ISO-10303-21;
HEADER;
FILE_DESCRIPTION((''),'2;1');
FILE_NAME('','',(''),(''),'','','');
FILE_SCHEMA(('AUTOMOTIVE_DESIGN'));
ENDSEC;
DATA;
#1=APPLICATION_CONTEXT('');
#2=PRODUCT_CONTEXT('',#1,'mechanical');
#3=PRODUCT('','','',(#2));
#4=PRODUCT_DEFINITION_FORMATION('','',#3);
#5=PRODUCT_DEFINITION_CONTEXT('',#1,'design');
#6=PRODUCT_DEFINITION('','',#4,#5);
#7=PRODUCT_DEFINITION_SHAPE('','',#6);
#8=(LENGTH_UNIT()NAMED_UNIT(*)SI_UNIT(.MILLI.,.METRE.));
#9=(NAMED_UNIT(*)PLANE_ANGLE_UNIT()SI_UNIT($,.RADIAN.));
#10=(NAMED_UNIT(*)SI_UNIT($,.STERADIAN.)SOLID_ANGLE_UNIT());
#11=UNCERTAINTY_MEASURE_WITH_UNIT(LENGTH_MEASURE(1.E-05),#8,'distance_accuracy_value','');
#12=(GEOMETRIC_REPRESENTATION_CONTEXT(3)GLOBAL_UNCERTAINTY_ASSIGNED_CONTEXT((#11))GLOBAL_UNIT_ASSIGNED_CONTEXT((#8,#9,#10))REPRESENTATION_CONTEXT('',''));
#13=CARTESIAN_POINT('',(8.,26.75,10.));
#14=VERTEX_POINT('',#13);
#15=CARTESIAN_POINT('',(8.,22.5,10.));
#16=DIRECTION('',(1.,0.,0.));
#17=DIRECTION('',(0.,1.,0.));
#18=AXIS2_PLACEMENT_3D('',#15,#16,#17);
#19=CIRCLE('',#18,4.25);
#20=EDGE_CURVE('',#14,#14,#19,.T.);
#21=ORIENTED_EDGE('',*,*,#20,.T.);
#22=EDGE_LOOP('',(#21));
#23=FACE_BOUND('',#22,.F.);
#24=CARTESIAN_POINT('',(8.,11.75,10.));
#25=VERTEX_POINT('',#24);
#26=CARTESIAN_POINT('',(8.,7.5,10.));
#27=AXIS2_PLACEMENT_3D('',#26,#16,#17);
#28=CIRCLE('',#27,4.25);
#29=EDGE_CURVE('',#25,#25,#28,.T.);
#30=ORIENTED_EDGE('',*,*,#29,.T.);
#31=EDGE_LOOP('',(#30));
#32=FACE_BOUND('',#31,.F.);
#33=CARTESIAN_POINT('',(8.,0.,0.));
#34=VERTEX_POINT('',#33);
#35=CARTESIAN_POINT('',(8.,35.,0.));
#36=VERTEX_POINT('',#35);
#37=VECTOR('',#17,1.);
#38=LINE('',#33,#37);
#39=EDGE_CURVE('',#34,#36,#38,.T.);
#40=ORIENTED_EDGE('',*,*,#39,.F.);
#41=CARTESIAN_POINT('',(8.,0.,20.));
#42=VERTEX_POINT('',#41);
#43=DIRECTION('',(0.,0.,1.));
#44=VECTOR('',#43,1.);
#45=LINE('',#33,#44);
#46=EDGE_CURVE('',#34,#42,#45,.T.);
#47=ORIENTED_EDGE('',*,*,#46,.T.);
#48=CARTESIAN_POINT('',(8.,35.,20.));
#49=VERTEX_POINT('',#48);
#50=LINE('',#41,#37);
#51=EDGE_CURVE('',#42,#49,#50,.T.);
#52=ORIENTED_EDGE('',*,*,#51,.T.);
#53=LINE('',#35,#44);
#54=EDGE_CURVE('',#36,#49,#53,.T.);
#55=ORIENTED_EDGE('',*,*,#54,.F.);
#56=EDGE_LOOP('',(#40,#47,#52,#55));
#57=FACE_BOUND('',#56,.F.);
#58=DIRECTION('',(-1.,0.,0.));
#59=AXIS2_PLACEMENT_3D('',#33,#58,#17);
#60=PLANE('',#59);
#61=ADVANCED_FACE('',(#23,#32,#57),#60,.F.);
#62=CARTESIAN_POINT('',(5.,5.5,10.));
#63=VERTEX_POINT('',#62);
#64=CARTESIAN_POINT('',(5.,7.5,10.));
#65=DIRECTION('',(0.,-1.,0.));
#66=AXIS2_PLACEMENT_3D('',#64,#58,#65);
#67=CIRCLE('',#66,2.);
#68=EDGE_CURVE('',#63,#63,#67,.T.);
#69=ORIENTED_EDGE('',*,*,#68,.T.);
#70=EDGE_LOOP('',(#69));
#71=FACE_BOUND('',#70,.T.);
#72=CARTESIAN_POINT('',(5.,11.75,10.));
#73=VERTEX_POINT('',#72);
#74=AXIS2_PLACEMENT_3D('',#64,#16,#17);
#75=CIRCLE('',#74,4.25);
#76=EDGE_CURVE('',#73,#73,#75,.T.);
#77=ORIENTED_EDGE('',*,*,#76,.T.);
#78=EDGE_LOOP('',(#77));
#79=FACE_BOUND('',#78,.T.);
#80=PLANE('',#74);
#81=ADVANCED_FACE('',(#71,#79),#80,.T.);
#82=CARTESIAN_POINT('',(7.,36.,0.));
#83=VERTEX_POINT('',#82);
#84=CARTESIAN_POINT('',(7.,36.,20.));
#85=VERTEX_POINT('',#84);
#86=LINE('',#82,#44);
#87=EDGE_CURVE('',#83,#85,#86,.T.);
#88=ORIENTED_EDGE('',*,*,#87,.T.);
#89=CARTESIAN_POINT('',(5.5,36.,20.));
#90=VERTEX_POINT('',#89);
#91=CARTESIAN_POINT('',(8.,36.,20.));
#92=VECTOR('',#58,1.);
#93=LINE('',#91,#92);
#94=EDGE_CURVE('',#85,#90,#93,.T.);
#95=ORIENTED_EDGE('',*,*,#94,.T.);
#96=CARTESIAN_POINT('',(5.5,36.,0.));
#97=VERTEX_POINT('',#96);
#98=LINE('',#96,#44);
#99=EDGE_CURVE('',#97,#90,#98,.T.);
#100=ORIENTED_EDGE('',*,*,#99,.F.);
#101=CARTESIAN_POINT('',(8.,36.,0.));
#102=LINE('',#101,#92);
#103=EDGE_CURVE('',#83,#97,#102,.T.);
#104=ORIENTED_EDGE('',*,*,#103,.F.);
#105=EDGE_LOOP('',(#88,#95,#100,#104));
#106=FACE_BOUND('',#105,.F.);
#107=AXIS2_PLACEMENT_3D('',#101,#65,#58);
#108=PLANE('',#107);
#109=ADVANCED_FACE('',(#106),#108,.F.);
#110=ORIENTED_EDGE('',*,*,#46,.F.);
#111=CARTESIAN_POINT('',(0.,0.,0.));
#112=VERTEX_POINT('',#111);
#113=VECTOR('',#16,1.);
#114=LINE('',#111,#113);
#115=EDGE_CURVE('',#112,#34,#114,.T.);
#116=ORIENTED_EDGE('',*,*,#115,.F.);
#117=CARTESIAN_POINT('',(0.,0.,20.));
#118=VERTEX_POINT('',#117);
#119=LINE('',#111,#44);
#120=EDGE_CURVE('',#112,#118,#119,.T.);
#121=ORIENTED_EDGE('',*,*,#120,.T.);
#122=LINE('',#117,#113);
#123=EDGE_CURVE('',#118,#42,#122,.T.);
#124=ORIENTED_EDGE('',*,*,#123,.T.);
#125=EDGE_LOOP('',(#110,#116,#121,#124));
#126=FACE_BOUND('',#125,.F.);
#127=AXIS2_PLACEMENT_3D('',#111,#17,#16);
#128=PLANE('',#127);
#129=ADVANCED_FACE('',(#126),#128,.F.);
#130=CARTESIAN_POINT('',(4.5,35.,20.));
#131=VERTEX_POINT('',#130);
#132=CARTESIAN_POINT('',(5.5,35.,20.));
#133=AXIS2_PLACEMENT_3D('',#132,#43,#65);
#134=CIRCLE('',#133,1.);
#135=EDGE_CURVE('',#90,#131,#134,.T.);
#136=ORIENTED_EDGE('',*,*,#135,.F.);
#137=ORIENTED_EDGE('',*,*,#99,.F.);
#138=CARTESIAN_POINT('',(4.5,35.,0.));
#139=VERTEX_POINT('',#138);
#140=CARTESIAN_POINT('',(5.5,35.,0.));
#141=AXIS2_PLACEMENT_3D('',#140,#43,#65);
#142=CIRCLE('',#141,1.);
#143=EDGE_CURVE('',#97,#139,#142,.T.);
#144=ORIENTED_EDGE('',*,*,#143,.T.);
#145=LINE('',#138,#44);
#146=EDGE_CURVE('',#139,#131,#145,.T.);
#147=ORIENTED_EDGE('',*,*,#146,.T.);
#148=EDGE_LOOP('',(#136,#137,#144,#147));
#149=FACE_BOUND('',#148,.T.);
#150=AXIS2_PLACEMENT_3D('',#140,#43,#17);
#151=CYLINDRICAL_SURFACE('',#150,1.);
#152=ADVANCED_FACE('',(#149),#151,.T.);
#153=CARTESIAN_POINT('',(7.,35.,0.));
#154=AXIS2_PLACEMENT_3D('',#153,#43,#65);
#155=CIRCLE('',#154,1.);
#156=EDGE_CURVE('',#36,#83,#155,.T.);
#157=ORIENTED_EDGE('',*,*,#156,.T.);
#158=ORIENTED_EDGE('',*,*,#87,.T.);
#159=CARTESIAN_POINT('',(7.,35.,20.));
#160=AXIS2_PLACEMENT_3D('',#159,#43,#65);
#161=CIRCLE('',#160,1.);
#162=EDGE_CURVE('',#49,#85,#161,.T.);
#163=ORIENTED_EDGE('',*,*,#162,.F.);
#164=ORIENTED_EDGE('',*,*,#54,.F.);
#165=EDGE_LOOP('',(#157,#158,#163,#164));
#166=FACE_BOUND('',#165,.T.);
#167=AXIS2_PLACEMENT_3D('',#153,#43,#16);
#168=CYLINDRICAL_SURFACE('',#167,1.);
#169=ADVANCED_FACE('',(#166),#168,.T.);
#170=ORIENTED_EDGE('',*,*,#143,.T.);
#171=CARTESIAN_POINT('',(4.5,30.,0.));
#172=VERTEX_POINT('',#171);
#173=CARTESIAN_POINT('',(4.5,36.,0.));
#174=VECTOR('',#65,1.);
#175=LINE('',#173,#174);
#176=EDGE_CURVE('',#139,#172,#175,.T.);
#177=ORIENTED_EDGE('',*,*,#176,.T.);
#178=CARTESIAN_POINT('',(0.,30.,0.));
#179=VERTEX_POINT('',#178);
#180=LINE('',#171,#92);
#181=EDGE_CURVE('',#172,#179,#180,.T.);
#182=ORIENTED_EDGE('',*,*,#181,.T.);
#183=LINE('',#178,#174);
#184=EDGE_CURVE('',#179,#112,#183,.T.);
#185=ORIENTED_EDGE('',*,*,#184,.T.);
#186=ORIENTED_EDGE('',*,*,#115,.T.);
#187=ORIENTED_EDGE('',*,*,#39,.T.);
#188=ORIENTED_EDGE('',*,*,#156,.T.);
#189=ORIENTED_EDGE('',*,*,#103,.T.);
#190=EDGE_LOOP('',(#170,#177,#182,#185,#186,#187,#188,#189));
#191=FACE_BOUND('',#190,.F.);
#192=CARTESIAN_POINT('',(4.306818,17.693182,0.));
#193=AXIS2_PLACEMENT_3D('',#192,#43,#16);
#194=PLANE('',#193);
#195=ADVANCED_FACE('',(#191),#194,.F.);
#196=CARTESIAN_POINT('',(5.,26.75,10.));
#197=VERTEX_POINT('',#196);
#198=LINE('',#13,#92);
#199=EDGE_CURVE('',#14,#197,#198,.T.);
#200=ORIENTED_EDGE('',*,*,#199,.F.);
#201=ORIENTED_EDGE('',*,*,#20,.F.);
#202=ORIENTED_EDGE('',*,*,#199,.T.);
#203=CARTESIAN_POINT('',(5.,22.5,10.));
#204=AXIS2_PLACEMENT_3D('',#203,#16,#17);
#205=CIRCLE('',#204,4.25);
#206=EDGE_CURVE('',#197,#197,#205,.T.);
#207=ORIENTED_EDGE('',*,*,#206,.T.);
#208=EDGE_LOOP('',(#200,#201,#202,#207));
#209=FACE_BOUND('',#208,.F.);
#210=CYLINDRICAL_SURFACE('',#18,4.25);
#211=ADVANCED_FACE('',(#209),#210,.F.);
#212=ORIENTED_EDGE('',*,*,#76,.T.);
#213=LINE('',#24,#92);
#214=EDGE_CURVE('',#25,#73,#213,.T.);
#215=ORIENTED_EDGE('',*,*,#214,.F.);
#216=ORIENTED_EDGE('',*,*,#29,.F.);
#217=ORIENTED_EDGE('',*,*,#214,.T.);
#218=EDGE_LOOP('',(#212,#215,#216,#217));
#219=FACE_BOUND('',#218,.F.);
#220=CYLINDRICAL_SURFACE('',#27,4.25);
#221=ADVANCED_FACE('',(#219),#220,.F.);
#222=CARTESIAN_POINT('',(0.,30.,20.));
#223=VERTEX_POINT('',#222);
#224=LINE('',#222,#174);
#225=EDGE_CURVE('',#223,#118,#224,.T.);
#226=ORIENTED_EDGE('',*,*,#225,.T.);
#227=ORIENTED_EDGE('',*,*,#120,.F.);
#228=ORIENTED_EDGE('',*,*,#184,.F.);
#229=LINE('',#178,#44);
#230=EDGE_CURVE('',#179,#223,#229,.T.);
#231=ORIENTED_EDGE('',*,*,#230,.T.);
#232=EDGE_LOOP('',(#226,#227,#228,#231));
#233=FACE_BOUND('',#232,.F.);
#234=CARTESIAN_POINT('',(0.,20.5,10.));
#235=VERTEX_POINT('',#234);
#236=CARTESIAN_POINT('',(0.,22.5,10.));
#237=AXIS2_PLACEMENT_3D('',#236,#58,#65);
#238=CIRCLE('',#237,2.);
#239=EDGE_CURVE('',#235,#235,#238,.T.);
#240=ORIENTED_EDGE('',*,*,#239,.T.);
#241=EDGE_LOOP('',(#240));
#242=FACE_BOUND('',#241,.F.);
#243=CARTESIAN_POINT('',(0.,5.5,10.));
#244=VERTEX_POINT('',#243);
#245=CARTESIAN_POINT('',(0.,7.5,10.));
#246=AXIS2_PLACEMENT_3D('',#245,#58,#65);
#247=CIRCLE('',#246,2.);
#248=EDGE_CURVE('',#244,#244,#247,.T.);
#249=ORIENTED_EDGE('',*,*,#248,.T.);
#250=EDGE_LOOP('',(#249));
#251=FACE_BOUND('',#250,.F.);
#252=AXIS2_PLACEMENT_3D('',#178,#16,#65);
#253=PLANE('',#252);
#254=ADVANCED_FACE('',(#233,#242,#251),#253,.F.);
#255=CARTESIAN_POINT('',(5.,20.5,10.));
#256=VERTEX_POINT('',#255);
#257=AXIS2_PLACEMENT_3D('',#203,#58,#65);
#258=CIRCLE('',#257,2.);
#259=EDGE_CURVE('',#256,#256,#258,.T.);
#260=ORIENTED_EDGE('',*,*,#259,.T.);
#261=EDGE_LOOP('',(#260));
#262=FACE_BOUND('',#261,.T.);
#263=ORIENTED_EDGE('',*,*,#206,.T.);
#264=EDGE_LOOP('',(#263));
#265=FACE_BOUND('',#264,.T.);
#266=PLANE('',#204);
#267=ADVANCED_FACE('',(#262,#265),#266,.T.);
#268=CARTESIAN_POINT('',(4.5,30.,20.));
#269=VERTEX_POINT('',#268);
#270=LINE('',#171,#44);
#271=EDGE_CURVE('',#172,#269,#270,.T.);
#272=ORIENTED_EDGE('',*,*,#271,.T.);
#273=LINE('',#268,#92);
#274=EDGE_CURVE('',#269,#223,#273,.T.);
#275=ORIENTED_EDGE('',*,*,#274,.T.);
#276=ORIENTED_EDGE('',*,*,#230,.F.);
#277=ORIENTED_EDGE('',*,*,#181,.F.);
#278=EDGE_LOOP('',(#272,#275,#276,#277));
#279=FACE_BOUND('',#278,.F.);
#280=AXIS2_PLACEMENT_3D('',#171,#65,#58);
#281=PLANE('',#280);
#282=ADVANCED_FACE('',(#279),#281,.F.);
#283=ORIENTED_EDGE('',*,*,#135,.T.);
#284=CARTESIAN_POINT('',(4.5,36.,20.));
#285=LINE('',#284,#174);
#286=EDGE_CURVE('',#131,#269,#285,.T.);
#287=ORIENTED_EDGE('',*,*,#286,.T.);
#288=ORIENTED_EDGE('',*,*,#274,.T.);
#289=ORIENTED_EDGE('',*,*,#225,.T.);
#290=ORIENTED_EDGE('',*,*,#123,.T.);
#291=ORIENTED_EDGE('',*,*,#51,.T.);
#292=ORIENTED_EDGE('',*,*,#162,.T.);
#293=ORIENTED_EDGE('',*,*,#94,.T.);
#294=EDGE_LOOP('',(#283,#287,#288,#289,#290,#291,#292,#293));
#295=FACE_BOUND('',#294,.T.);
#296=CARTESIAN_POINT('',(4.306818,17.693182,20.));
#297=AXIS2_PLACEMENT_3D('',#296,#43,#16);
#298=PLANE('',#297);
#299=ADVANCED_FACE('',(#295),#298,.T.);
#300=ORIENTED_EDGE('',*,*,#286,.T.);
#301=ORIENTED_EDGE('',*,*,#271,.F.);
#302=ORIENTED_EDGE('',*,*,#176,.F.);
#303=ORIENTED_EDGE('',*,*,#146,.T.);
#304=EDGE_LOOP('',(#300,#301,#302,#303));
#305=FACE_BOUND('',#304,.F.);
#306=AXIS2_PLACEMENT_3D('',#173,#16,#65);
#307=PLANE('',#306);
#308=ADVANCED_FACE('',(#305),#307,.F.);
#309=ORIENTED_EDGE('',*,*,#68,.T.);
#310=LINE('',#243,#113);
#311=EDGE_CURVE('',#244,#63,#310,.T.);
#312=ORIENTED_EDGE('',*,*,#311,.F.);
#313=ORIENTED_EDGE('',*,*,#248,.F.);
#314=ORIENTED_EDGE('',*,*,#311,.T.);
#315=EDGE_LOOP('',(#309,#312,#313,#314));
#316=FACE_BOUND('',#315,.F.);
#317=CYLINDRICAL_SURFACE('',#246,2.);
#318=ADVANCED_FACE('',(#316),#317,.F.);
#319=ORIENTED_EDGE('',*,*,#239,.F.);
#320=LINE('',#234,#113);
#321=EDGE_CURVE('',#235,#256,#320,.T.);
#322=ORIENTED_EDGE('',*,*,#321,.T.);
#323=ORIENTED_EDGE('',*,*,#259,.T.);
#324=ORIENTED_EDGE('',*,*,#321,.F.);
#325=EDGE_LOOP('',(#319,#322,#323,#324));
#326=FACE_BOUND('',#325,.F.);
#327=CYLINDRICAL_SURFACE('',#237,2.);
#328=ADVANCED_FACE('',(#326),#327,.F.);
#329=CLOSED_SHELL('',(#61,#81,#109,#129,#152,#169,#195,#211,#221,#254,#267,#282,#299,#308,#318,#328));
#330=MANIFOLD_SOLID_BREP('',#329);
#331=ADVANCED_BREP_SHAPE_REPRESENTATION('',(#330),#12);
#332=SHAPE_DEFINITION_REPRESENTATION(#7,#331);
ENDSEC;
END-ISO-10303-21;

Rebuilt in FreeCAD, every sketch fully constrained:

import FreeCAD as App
import Part
import Sketcher
from FreeCAD import Vector
Q = App.Units.Quantity


def edges_at(feature, points):
    """Names of the edges that pass closest to the given points."""
    edges = feature.Shape.Edges
    near = lambda p: min(range(len(edges)), key=lambda i: edges[i].distToShape(Part.Vertex(*p))[0])
    return sorted({f"Edge{near(p) + 1}" for p in points})

doc = App.newDocument("Part")
body = doc.addObject("PartDesign::Body", "Body")

sketch1 = doc.addObject("Sketcher::SketchObject", "Sketch")
body.addObject(sketch1)
sketch1.AttachmentSupport = (doc.XY_Plane, [""])
sketch1.MapMode = "FlatFace"
sketch1.addGeometry([
    Part.LineSegment(Vector(8, 0, 0), Vector(8, 36, 0)),
    Part.LineSegment(Vector(8, 36, 0), Vector(4.5, 36, 0)),
    Part.LineSegment(Vector(4.5, 36, 0), Vector(4.5, 30, 0)),
    Part.LineSegment(Vector(4.5, 30, 0), Vector(0, 30, 0)),
    Part.LineSegment(Vector(0, 30, 0), Vector(0, 0, 0)),
    Part.LineSegment(Vector(0, 0, 0), Vector(8, 0, 0)),
], False)
sketch1.addConstraint([
    Sketcher.Constraint("Coincident", 0, 2, 1, 1),
    Sketcher.Constraint("Coincident", 1, 2, 2, 1),
    Sketcher.Constraint("Coincident", 2, 2, 3, 1),
    Sketcher.Constraint("Coincident", 3, 2, 4, 1),
    Sketcher.Constraint("Coincident", 4, 2, 5, 1),
    Sketcher.Constraint("Coincident", 5, 2, 0, 1),
    Sketcher.Constraint("Vertical", 0),
    Sketcher.Constraint("Horizontal", 1),
    Sketcher.Constraint("Vertical", 2),
    Sketcher.Constraint("Horizontal", 3),
    Sketcher.Constraint("Vertical", 4),
    Sketcher.Constraint("Horizontal", 5),
    Sketcher.Constraint("Coincident", 4, 2, -1, 1),
    Sketcher.Constraint("DistanceX", 5, 1, 5, 2, Q("8 mm")),
    Sketcher.Constraint("DistanceY", 0, 1, 0, 2, Q("36 mm")),
    Sketcher.Constraint("DistanceY", 2, 2, 2, 1, Q("6 mm")),
    Sketcher.Constraint("DistanceX", 1, 2, 1, 1, Q("3.5 mm")),
])
pad1 = doc.addObject("PartDesign::Pad", "Pad")
body.addObject(pad1)
pad1.Profile = sketch1
pad1.Length = 20

sketch2 = doc.addObject("Sketcher::SketchObject", "Sketch001")
body.addObject(sketch2)
sketch2.AttachmentSupport = (doc.YZ_Plane, [""])
sketch2.MapMode = "FlatFace"
sketch2.addGeometry([
    Part.Circle(Vector(7.5, 10, 0), Vector(0, 0, 1), 2),
    Part.Circle(Vector(22.5, 10, 0), Vector(0, 0, 1), 2),
], False)
sketch2.addConstraint([
    Sketcher.Constraint("Equal", 0, 1),
    Sketcher.Constraint("Horizontal", 0, 3, 1, 3),
    Sketcher.Constraint("Diameter", 0, Q("4 mm")),
    Sketcher.Constraint("DistanceY", -1, 1, 0, 3, Q("10 mm")),
    Sketcher.Constraint("DistanceX", 0, 3, 1, 3, Q("15 mm")),
    Sketcher.Constraint("DistanceX", -1, 1, 0, 3, Q("7.5 mm")),
])
pocket1 = doc.addObject("PartDesign::Pocket", "Pocket")
body.addObject(pocket1)
pocket1.Profile = sketch2
pocket1.Type = "ThroughAll"
pocket1.Reversed = True
doc.recompute()

fillet = doc.addObject("PartDesign::Fillet", "Fillet")
body.addObject(fillet)
fillet.Base = (pocket1, edges_at(pocket1, [(4.5, 36, 10), (8, 36, 10)]))
fillet.Radius = 1

sketch3 = doc.addObject("Sketcher::SketchObject", "Sketch002")
body.addObject(sketch3)
sketch3.AttachmentSupport = (doc.YZ_Plane, [""])
sketch3.MapMode = "FlatFace"
sketch3.AttachmentOffset = App.Placement(Vector(0, 0, 8), App.Rotation())
sketch3.addGeometry([
    Part.Circle(Vector(22.5, 10, 0), Vector(0, 0, 1), 4.2),
    Part.Circle(Vector(7.5, 10, 0), Vector(0, 0, 1), 4.2),
], False)
sketch3.addConstraint([
    Sketcher.Constraint("Equal", 0, 1),
    Sketcher.Constraint("Horizontal", 0, 3, 1, 3),
    Sketcher.Constraint("Diameter", 0, Q("8.5 mm")),
    Sketcher.Constraint("DistanceY", -1, 1, 0, 3, Q("10 mm")),
    Sketcher.Constraint("DistanceX", 1, 3, 0, 3, Q("15 mm")),
    Sketcher.Constraint("DistanceX", -1, 1, 0, 3, Q("22.5 mm")),
])
pocket2 = doc.addObject("PartDesign::Pocket", "Pocket001")
body.addObject(pocket2)
pocket2.Profile = sketch3
pocket2.Length = 3

doc.recompute()
